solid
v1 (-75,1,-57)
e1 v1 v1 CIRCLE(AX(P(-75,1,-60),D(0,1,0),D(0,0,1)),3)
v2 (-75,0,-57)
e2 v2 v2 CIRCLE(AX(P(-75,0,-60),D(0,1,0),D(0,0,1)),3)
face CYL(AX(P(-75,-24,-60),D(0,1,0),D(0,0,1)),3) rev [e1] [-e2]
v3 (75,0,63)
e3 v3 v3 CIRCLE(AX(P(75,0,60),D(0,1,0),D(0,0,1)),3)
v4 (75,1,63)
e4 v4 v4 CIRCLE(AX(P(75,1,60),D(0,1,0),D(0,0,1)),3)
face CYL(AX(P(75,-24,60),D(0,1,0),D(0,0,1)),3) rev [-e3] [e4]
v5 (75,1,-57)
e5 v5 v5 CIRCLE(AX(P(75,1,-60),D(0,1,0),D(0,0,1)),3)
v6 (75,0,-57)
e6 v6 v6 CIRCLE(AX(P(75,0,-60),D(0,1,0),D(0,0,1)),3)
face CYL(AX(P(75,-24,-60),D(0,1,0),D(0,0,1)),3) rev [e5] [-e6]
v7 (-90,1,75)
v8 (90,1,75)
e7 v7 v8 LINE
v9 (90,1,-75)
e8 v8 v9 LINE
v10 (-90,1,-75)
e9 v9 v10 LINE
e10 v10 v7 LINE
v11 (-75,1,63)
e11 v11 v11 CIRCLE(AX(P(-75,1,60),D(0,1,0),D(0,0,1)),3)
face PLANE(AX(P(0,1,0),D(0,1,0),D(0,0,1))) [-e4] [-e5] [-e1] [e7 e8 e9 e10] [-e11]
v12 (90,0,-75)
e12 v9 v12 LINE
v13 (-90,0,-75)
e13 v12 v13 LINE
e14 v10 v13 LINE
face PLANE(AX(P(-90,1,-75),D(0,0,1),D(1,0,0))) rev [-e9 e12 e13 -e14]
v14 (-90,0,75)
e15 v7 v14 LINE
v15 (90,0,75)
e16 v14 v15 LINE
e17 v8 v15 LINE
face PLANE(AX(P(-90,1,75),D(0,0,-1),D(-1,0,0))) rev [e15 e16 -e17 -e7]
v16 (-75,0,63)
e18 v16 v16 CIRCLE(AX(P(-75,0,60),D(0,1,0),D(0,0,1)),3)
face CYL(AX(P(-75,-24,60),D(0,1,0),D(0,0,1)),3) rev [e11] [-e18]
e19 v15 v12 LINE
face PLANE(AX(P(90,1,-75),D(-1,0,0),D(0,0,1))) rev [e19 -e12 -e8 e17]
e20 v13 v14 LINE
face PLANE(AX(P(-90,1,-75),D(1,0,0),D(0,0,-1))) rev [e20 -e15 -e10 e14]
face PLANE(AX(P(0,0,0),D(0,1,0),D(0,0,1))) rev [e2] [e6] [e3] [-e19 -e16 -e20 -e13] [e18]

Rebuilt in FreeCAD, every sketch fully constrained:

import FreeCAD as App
import Part
import Sketcher


def add_polygon(sketch, points):
    """Adds a closed chain of lines whose ends are joined by coincident constraints."""
    first, n = sketch.GeometryCount, len(points)
    for a, b in zip(points, points[1:] + points[:1]):
        sketch.addGeometry(Part.LineSegment(App.Vector(*a, 0), App.Vector(*b, 0)), False)
    for i in range(n):
        sketch.addConstraint(Sketcher.Constraint("Coincident", first + i, 2, first + (i + 1) % n, 1))

doc = App.newDocument("Part")
params = doc.addObject("Spreadsheet::Sheet", "Params")
for row, (alias, value) in enumerate([
    ("sketch1_width", "180 mm"),
    ("sketch1_height", "150 mm"),
    ("pad1_length", "1 mm"),
    ("sketch2_diameter", "6 mm"),
    ("pocket1_length", "50 mm"),
], start=1):
    params.set(f"A{row}", alias)
    params.set(f"B{row}", "=" + value)
    params.setAlias(f"B{row}", alias)

body = doc.addObject("PartDesign::Body", "Body")

sketch1 = body.newObject("Sketcher::SketchObject", "Sketch")
sketch1.AttachmentSupport = (doc.getObject("XZ_Plane"), [""])
sketch1.MapMode = "FlatFace"
add_polygon(sketch1, [(-90, -75), (-90, 75), (90, 75), (90, -75)])
sketch1.addConstraint(Sketcher.Constraint("Vertical", 0))
sketch1.addConstraint(Sketcher.Constraint("Horizontal", 1))
sketch1.addConstraint(Sketcher.Constraint("Vertical", 2))
sketch1.addConstraint(Sketcher.Constraint("Horizontal", 3))
sketch1.addConstraint(Sketcher.Constraint("Symmetric", 0, 2, 2, 2, -1, 1))
sketch1.addConstraint(Sketcher.Constraint("DistanceX", 1, 1, 1, 2, 180.0))
sketch1.addConstraint(Sketcher.Constraint("DistanceY", 0, 1, 0, 2, 150.0))
sketch1.setExpression("Constraints[9]", "Params.sketch1_width")
sketch1.setExpression("Constraints[10]", "Params.sketch1_height")
pad1 = body.newObject("PartDesign::Pad", "Pad")
pad1.Profile = sketch1
pad1.setExpression("Length", "Params.pad1_length")
pad1.Reversed = True

sketch2 = body.newObject("Sketcher::SketchObject", "Sketch001")
sketch2.AttachmentSupport = (doc.getObject("XZ_Plane"), [""])
sketch2.MapMode = "FlatFace"
sketch2.AttachmentOffset = App.Placement(App.Vector(0, 0, -1), App.Rotation())
sketch2.addGeometry(Part.Circle(App.Vector(-75, -60, 0), App.Vector(0, 0, 1), 3), False)
sketch2.addGeometry(Part.Circle(App.Vector(75, -60, 0), App.Vector(0, 0, 1), 3), False)
sketch2.addGeometry(Part.Circle(App.Vector(75, 60, 0), App.Vector(0, 0, 1), 3), False)
sketch2.addGeometry(Part.Circle(App.Vector(-75, 60, 0), App.Vector(0, 0, 1), 3), False)
sketch2.addConstraint(Sketcher.Constraint("Equal", 0, 1))
sketch2.addConstraint(Sketcher.Constraint("Equal", 1, 2))
sketch2.addConstraint(Sketcher.Constraint("Equal", 2, 3))
sketch2.addConstraint(Sketcher.Constraint("Symmetric", 0, 3, 2, 3, -1, 1))
sketch2.addConstraint(Sketcher.Constraint("Symmetric", 1, 3, 3, 3, -1, 1))
sketch2.addConstraint(Sketcher.Constraint("Symmetric", 0, 3, 1, 3, -2))
sketch2.addConstraint(Sketcher.Constraint("Diameter", 0, 6.0))
sketch2.addConstraint(Sketcher.Constraint("DistanceX", 0, 3, -1, 1, 75.0))
sketch2.addConstraint(Sketcher.Constraint("DistanceY", 0, 3, -1, 1, 60.0))
sketch2.setExpression("Constraints[6]", "Params.sketch2_diameter")
pocket1 = body.newObject("PartDesign::Pocket", "Pocket")
pocket1.Profile = sketch2
pocket1.setExpression("Length", "Params.pocket1_length")
pocket1.Midplane = True

doc.recompute()
